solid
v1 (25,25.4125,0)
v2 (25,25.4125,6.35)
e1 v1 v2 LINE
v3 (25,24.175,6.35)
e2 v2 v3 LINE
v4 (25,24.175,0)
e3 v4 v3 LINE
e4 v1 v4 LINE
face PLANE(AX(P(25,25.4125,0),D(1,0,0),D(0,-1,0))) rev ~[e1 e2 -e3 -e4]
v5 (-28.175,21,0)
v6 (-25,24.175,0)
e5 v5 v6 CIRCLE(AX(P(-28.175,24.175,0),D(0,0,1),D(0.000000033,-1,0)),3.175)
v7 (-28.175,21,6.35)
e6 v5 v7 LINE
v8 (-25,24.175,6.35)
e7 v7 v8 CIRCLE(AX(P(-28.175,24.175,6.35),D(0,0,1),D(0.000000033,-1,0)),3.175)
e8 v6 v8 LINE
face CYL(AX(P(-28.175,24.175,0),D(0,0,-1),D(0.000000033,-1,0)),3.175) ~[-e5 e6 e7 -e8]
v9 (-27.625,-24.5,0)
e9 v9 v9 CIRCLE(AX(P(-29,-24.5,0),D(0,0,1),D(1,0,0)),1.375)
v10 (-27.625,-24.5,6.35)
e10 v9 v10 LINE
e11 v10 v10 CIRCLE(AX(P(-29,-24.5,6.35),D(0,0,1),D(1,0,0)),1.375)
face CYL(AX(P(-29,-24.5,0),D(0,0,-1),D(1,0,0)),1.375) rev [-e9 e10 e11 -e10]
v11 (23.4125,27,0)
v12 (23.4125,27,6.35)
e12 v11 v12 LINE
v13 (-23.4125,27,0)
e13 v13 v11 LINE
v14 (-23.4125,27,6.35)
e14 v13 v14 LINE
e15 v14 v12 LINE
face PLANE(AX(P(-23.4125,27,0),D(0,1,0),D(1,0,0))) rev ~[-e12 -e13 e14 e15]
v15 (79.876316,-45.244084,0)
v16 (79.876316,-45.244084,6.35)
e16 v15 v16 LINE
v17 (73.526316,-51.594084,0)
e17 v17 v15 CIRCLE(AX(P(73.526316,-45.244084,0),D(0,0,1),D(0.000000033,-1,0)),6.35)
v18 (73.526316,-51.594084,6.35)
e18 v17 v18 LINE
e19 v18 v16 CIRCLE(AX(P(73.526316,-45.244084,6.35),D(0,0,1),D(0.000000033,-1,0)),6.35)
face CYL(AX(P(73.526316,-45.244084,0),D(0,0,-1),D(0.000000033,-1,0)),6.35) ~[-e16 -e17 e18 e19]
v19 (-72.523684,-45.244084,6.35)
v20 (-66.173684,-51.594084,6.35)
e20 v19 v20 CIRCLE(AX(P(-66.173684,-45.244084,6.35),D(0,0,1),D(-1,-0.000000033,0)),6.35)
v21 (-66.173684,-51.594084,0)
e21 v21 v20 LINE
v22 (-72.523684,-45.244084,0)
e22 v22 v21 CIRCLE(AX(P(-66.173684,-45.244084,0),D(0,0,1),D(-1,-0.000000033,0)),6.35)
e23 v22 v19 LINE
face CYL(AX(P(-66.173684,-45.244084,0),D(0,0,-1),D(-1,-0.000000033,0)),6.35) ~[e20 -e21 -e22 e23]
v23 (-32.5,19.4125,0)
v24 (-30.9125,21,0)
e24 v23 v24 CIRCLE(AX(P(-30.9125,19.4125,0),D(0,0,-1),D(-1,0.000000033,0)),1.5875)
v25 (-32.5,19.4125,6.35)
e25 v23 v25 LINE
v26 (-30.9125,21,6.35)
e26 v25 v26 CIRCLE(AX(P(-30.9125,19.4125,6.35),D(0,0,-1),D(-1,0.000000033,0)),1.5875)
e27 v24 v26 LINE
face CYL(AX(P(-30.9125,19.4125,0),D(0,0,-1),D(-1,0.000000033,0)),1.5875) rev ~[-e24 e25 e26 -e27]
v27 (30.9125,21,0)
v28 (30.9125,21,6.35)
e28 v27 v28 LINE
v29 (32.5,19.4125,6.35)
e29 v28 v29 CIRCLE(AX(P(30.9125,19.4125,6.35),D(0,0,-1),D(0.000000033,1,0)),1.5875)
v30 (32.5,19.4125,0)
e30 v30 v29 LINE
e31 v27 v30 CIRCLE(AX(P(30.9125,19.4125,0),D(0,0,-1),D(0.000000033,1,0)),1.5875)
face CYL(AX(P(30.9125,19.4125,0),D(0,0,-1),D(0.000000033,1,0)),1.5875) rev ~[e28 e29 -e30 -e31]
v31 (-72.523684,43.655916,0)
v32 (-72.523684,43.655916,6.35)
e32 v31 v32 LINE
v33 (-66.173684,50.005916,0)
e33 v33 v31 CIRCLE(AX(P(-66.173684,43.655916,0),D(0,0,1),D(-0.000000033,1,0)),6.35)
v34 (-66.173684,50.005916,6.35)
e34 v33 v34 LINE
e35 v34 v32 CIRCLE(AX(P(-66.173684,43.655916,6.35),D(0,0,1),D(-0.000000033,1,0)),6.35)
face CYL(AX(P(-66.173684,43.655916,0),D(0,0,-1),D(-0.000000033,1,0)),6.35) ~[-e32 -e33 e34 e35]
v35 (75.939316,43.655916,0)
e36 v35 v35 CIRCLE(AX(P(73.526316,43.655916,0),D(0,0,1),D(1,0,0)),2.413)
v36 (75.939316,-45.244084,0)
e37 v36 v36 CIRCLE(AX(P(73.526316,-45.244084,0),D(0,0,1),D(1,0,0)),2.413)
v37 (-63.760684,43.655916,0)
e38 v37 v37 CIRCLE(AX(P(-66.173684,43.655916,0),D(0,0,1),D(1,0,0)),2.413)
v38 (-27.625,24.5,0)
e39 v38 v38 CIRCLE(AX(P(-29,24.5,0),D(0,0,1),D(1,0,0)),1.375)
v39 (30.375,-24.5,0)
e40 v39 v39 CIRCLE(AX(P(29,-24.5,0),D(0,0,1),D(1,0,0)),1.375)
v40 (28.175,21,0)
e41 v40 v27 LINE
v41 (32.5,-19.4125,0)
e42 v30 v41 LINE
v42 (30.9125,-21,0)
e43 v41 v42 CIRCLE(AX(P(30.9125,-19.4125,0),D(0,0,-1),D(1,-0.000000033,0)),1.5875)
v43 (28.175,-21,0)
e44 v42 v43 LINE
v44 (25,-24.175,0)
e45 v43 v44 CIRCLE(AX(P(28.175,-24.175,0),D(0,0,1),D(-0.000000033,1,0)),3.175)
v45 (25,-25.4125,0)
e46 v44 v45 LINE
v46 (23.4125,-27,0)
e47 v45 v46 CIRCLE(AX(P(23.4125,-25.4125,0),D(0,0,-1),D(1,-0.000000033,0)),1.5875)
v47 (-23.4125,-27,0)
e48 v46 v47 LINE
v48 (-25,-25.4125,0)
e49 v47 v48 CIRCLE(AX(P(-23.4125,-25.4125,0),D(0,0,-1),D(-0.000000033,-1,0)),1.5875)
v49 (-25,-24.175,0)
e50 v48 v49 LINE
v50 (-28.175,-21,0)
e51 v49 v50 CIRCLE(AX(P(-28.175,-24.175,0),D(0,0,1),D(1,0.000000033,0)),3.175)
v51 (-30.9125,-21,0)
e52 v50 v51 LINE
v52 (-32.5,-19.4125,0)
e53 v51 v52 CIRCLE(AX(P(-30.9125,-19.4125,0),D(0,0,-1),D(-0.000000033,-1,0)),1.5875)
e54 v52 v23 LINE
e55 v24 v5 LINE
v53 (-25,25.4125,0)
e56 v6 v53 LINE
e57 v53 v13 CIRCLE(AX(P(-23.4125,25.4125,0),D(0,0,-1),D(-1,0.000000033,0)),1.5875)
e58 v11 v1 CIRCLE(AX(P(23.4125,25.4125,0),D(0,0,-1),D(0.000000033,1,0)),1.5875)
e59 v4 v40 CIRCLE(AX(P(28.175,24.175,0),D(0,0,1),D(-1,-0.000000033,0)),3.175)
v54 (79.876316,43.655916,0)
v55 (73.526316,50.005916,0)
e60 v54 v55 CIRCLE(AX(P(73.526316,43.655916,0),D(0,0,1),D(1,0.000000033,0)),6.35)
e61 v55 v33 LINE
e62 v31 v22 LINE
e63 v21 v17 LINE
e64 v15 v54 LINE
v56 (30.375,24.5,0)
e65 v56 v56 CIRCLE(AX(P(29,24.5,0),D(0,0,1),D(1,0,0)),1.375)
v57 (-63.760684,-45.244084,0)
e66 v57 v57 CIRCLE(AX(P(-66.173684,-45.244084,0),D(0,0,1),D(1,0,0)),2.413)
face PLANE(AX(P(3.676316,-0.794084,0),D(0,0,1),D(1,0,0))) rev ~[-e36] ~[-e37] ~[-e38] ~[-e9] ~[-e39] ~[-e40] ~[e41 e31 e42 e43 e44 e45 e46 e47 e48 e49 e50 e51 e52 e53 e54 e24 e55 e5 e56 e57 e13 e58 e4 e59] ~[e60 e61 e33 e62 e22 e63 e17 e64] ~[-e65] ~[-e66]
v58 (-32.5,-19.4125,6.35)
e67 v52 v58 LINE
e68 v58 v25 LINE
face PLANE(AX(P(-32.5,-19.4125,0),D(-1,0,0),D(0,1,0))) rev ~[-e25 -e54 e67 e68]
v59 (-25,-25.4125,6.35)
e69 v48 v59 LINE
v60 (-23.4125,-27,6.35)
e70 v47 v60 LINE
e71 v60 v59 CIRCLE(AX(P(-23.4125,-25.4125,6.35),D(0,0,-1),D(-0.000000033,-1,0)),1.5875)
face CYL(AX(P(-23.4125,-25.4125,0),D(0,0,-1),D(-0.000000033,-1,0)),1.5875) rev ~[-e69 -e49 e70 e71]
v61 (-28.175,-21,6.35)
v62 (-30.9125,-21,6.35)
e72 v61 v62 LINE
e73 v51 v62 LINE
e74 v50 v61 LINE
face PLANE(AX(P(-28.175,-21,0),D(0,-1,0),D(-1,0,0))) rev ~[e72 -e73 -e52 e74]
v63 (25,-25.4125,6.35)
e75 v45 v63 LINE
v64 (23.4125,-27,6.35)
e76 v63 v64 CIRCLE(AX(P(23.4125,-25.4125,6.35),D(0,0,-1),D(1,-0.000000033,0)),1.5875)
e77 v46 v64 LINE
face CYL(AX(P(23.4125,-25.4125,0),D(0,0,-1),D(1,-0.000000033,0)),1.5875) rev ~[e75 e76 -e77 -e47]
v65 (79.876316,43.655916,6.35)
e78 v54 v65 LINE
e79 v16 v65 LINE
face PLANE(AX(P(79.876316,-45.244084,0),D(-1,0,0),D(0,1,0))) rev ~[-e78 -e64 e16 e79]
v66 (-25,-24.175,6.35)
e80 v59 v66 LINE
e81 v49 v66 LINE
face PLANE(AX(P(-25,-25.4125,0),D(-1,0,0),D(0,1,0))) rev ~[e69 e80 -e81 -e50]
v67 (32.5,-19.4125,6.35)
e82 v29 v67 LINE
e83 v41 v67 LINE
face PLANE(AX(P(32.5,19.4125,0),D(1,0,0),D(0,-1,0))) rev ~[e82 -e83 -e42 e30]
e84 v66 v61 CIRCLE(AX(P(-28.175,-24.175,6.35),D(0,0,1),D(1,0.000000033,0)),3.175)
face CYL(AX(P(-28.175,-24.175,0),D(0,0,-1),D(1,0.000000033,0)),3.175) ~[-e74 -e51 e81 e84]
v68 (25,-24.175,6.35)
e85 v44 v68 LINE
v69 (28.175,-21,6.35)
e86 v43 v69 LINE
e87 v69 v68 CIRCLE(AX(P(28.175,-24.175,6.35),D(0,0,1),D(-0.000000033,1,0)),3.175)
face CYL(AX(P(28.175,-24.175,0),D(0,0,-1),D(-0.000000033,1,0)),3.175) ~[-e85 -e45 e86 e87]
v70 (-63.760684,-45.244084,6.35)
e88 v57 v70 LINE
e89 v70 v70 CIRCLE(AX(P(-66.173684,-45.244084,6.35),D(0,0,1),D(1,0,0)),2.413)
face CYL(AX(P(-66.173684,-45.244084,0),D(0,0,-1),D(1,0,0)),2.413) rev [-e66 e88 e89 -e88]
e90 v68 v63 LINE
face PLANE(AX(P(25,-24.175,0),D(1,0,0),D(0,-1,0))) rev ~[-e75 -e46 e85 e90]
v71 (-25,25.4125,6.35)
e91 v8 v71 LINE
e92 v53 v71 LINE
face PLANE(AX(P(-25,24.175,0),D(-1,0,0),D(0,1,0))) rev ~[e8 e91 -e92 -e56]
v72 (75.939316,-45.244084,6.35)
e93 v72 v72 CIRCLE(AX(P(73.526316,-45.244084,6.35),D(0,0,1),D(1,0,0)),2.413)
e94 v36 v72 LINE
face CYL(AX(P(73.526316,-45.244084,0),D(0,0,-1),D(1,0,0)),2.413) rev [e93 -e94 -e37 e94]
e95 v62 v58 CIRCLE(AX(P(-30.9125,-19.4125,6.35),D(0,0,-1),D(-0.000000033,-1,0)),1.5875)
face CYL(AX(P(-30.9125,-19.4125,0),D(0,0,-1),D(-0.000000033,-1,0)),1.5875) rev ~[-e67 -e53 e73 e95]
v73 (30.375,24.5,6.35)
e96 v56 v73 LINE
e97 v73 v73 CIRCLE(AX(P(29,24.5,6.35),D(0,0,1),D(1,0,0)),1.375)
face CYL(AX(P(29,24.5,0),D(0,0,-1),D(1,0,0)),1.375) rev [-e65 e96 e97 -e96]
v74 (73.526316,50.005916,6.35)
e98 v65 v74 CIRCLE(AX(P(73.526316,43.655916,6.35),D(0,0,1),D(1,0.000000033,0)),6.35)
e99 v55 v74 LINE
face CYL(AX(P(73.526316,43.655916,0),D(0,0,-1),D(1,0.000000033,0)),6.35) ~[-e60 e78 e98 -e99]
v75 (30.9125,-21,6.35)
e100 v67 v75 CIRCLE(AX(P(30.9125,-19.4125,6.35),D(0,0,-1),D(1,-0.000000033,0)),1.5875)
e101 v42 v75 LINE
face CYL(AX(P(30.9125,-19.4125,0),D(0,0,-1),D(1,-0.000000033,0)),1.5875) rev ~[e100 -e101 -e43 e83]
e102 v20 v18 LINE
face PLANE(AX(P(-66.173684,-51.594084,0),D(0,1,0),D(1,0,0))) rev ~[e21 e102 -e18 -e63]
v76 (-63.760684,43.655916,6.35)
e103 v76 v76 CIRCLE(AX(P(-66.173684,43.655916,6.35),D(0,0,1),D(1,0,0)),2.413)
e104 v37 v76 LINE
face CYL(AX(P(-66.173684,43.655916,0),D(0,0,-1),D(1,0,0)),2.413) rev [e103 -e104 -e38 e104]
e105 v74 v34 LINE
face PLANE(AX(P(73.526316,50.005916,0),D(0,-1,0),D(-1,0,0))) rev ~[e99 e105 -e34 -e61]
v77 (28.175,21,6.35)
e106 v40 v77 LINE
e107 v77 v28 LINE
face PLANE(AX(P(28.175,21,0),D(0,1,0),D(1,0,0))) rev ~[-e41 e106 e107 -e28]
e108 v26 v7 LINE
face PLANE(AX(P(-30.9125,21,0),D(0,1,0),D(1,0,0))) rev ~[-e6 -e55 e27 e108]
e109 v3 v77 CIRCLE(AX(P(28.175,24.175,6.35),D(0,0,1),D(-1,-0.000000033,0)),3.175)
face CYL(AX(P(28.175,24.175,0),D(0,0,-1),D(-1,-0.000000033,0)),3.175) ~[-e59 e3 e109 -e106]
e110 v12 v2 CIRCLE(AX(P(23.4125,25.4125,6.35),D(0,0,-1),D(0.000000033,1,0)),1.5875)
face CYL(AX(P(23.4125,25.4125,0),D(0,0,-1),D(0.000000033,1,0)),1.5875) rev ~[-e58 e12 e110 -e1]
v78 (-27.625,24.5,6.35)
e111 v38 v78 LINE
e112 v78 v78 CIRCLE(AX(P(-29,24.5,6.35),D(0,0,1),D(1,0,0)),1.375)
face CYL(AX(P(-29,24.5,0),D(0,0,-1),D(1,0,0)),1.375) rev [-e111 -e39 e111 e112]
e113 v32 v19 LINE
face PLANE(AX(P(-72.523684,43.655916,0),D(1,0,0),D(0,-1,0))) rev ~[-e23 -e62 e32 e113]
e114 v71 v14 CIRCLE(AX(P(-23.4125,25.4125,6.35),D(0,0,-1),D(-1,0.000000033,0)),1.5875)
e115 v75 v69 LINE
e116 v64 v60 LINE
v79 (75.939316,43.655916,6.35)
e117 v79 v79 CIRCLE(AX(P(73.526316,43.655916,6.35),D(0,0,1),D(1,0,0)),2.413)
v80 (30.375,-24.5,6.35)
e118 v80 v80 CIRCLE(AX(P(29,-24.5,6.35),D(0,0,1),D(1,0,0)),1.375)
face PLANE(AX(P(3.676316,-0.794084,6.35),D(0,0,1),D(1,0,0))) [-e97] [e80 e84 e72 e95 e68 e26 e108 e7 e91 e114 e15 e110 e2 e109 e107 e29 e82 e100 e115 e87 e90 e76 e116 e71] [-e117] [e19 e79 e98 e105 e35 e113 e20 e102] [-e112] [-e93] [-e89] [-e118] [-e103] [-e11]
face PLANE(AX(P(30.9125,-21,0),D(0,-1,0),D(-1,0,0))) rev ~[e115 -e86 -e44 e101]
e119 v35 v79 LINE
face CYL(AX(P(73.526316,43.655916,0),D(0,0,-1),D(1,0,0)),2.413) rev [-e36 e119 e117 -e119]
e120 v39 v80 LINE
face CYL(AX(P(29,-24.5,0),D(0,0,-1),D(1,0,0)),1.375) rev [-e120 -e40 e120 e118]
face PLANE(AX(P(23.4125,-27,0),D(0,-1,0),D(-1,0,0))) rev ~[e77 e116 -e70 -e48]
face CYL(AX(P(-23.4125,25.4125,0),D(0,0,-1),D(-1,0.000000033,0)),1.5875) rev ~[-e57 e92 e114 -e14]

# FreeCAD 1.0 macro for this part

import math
import FreeCAD as App
import Part
import Sketcher

V = App.Vector
Q = App.Units.Quantity

doc = App.newDocument("Part")
body = doc.addObject("PartDesign::Body", "Body")

sketch1 = doc.addObject("Sketcher::SketchObject", "Sketch")
body.addObject(sketch1)
sketch1.AttachmentSupport = (doc.XY_Plane, [""])
sketch1.MapMode = "FlatFace"
sketch1.addGeometry(Part.ArcOfCircle(Part.Circle(V(-66.2, -45.2, 0), V(0, 0, 1), 6.4), math.radians(-180), math.radians(-90)), False)
sketch1.addGeometry(Part.LineSegment(V(-66.2, -51.6, 0), V(73.5, -51.6, 0)), False)
sketch1.addGeometry(Part.ArcOfCircle(Part.Circle(V(73.5, -45.2, 0), V(0, 0, 1), 6.4), math.radians(-90), math.radians(0)), False)
sketch1.addGeometry(Part.LineSegment(V(79.9, -45.2, 0), V(79.9, 43.7, 0)), False)
sketch1.addGeometry(Part.ArcOfCircle(Part.Circle(V(73.5, 43.7, 0), V(0, 0, 1), 6.4), math.radians(0), math.radians(90)), False)
sketch1.addGeometry(Part.LineSegment(V(73.5, 50, 0), V(-66.2, 50, 0)), False)
sketch1.addGeometry(Part.ArcOfCircle(Part.Circle(V(-66.2, 43.7, 0), V(0, 0, 1), 6.4), math.radians(90), math.radians(180)), False)
sketch1.addGeometry(Part.LineSegment(V(-72.5, 43.7, 0), V(-72.5, -45.2, 0)), False)
sketch1.addGeometry(Part.Circle(V(-66.2, -45.2, 0), V(0, 0, 1), 2.4), False)
sketch1.addGeometry(Part.Circle(V(-29, -24.5, 0), V(0, 0, 1), 1.4), False)
sketch1.addGeometry(Part.Circle(V(29, -24.5, 0), V(0, 0, 1), 1.4), False)
sketch1.addGeometry(Part.Circle(V(73.5, -45.2, 0), V(0, 0, 1), 2.4), False)
sketch1.addGeometry(Part.LineSegment(V(-32.5, -19.4, 0), V(-32.5, 19.4, 0)), False)
sketch1.addGeometry(Part.ArcOfCircle(Part.Circle(V(-30.9, 19.4, 0), V(0, 0, 1), 1.6), math.radians(90), math.radians(180)), False)
sketch1.addGeometry(Part.LineSegment(V(-30.9, 21, 0), V(-28.2, 21, 0)), False)
sketch1.addGeometry(Part.ArcOfCircle(Part.Circle(V(-28.2, 24.2, 0), V(0, 0, 1), 3.2), math.radians(-90), math.radians(0)), False)
sketch1.addGeometry(Part.LineSegment(V(-25, 24.2, 0), V(-25, 25.4, 0)), False)
sketch1.addGeometry(Part.ArcOfCircle(Part.Circle(V(-23.4, 25.4, 0), V(0, 0, 1), 1.6), math.radians(90), math.radians(180)), False)
sketch1.addGeometry(Part.LineSegment(V(-23.4, 27, 0), V(23.4, 27, 0)), False)
sketch1.addGeometry(Part.ArcOfCircle(Part.Circle(V(23.4, 25.4, 0), V(0, 0, 1), 1.6), math.radians(0), math.radians(90)), False)
sketch1.addGeometry(Part.LineSegment(V(25, 25.4, 0), V(25, 24.2, 0)), False)
sketch1.addGeometry(Part.ArcOfCircle(Part.Circle(V(28.2, 24.2, 0), V(0, 0, 1), 3.2), math.radians(-180), math.radians(-90)), False)
sketch1.addGeometry(Part.LineSegment(V(28.2, 21, 0), V(30.9, 21, 0)), False)
sketch1.addGeometry(Part.ArcOfCircle(Part.Circle(V(30.9, 19.4, 0), V(0, 0, 1), 1.6), math.radians(0), math.radians(90)), False)
sketch1.addGeometry(Part.LineSegment(V(32.5, 19.4, 0), V(32.5, -19.4, 0)), False)
sketch1.addGeometry(Part.ArcOfCircle(Part.Circle(V(30.9, -19.4, 0), V(0, 0, 1), 1.6), math.radians(-90), math.radians(0)), False)
sketch1.addGeometry(Part.LineSegment(V(30.9, -21, 0), V(28.2, -21, 0)), False)
sketch1.addGeometry(Part.ArcOfCircle(Part.Circle(V(28.2, -24.2, 0), V(0, 0, 1), 3.2), math.radians(90), math.radians(180)), False)
sketch1.addGeometry(Part.LineSegment(V(25, -24.2, 0), V(25, -25.4, 0)), False)
sketch1.addGeometry(Part.ArcOfCircle(Part.Circle(V(23.4, -25.4, 0), V(0, 0, 1), 1.6), math.radians(-90), math.radians(0)), False)
sketch1.addGeometry(Part.LineSegment(V(23.4, -27, 0), V(-23.4, -27, 0)), False)
sketch1.addGeometry(Part.ArcOfCircle(Part.Circle(V(-23.4, -25.4, 0), V(0, 0, 1), 1.6), math.radians(-180), math.radians(-90)), False)
sketch1.addGeometry(Part.LineSegment(V(-25, -25.4, 0), V(-25, -24.2, 0)), False)
sketch1.addGeometry(Part.ArcOfCircle(Part.Circle(V(-28.2, -24.2, 0), V(0, 0, 1), 3.2), math.radians(0), math.radians(90)), False)
sketch1.addGeometry(Part.LineSegment(V(-28.2, -21, 0), V(-30.9, -21, 0)), False)
sketch1.addGeometry(Part.ArcOfCircle(Part.Circle(V(-30.9, -19.4, 0), V(0, 0, 1), 1.6), math.radians(-180), math.radians(-90)), False)
sketch1.addGeometry(Part.Circle(V(-66.2, 43.7, 0), V(0, 0, 1), 2.4), False)
sketch1.addGeometry(Part.Circle(V(-29, 24.5, 0), V(0, 0, 1), 1.4), False)
sketch1.addGeometry(Part.Circle(V(29, 24.5, 0), V(0, 0, 1), 1.4), False)
sketch1.addGeometry(Part.Circle(V(73.5, 43.7, 0), V(0, 0, 1), 2.4), False)
sketch1.addConstraint(Sketcher.Constraint("Tangent", 0, 2, 1, 1))
sketch1.addConstraint(Sketcher.Constraint("Tangent", 1, 2, 2, 1))
sketch1.addConstraint(Sketcher.Constraint("Tangent", 2, 2, 3, 1))
sketch1.addConstraint(Sketcher.Constraint("Tangent", 3, 2, 4, 1))
sketch1.addConstraint(Sketcher.Constraint("Tangent", 4, 2, 5, 1))
sketch1.addConstraint(Sketcher.Constraint("Tangent", 5, 2, 6, 1))
sketch1.addConstraint(Sketcher.Constraint("Tangent", 6, 2, 7, 1))
sketch1.addConstraint(Sketcher.Constraint("Tangent", 7, 2, 0, 1))
sketch1.addConstraint(Sketcher.Constraint("Tangent", 12, 2, 13, 2))
sketch1.addConstraint(Sketcher.Constraint("Tangent", 13, 1, 14, 1))
sketch1.addConstraint(Sketcher.Constraint("Tangent", 14, 2, 15, 1))
sketch1.addConstraint(Sketcher.Constraint("Tangent", 15, 2, 16, 1))
sketch1.addConstraint(Sketcher.Constraint("Tangent", 16, 2, 17, 2))
sketch1.addConstraint(Sketcher.Constraint("Tangent", 17, 1, 18, 1))
sketch1.addConstraint(Sketcher.Constraint("Tangent", 18, 2, 19, 2))
sketch1.addConstraint(Sketcher.Constraint("Tangent", 19, 1, 20, 1))
sketch1.addConstraint(Sketcher.Constraint("Tangent", 20, 2, 21, 1))
sketch1.addConstraint(Sketcher.Constraint("Tangent", 21, 2, 22, 1))
sketch1.addConstraint(Sketcher.Constraint("Tangent", 22, 2, 23, 2))
sketch1.addConstraint(Sketcher.Constraint("Tangent", 23, 1, 24, 1))
sketch1.addConstraint(Sketcher.Constraint("Tangent", 24, 2, 25, 2))
sketch1.addConstraint(Sketcher.Constraint("Tangent", 25, 1, 26, 1))
sketch1.addConstraint(Sketcher.Constraint("Tangent", 26, 2, 27, 1))
sketch1.addConstraint(Sketcher.Constraint("Tangent", 27, 2, 28, 1))
sketch1.addConstraint(Sketcher.Constraint("Tangent", 28, 2, 29, 2))
sketch1.addConstraint(Sketcher.Constraint("Tangent", 29, 1, 30, 1))
sketch1.addConstraint(Sketcher.Constraint("Tangent", 30, 2, 31, 2))
sketch1.addConstraint(Sketcher.Constraint("Tangent", 31, 1, 32, 1))
sketch1.addConstraint(Sketcher.Constraint("Tangent", 32, 2, 33, 1))
sketch1.addConstraint(Sketcher.Constraint("Tangent", 33, 2, 34, 1))
sketch1.addConstraint(Sketcher.Constraint("Tangent", 34, 2, 35, 2))
sketch1.addConstraint(Sketcher.Constraint("Tangent", 35, 1, 12, 1))
sketch1.addConstraint(Sketcher.Constraint("Horizontal", 1))
sketch1.addConstraint(Sketcher.Constraint("Vertical", 3))
sketch1.addConstraint(Sketcher.Constraint("Horizontal", 5))
sketch1.addConstraint(Sketcher.Constraint("Vertical", 7))
sketch1.addConstraint(Sketcher.Constraint("Vertical", 12))
sketch1.addConstraint(Sketcher.Constraint("Horizontal", 14))
sketch1.addConstraint(Sketcher.Constraint("Vertical", 16))
sketch1.addConstraint(Sketcher.Constraint("Horizontal", 18))
sketch1.addConstraint(Sketcher.Constraint("Vertical", 20))
sketch1.addConstraint(Sketcher.Constraint("Horizontal", 22))
sketch1.addConstraint(Sketcher.Constraint("Vertical", 24))
sketch1.addConstraint(Sketcher.Constraint("Horizontal", 26))
sketch1.addConstraint(Sketcher.Constraint("Vertical", 28))
sketch1.addConstraint(Sketcher.Constraint("Horizontal", 30))
sketch1.addConstraint(Sketcher.Constraint("Vertical", 32))
sketch1.addConstraint(Sketcher.Constraint("Horizontal", 34))
sketch1.addConstraint(Sketcher.Constraint("Coincident", 8, 3, 0, 3))
sketch1.addConstraint(Sketcher.Constraint("Coincident", 11, 3, 2, 3))
sketch1.addConstraint(Sketcher.Constraint("Coincident", 36, 3, 6, 3))
sketch1.addConstraint(Sketcher.Constraint("Coincident", 39, 3, 4, 3))
sketch1.addConstraint(Sketcher.Constraint("Equal", 0, 2))
sketch1.addConstraint(Sketcher.Constraint("Equal", 2, 4))
sketch1.addConstraint(Sketcher.Constraint("Equal", 4, 6))
sketch1.addConstraint(Sketcher.Constraint("Equal", 9, 10))
sketch1.addConstraint(Sketcher.Constraint("Equal", 8, 11))
sketch1.addConstraint(Sketcher.Constraint("Equal", 13, 17))
sketch1.addConstraint(Sketcher.Constraint("Equal", 17, 19))
sketch1.addConstraint(Sketcher.Constraint("Equal", 15, 21))
sketch1.addConstraint(Sketcher.Constraint("Equal", 19, 23))
sketch1.addConstraint(Sketcher.Constraint("Equal", 23, 25))
sketch1.addConstraint(Sketcher.Constraint("Equal", 21, 27))
sketch1.addConstraint(Sketcher.Constraint("Equal", 25, 29))
sketch1.addConstraint(Sketcher.Constraint("Equal", 29, 31))
sketch1.addConstraint(Sketcher.Constraint("Equal", 27, 33))
sketch1.addConstraint(Sketcher.Constraint("Equal", 31, 35))
sketch1.addConstraint(Sketcher.Constraint("Equal", 11, 36))
sketch1.addConstraint(Sketcher.Constraint("Equal", 10, 37))
sketch1.addConstraint(Sketcher.Constraint("Equal", 37, 38))
sketch1.addConstraint(Sketcher.Constraint("Equal", 36, 39))
sketch1.addConstraint(Sketcher.Constraint("Symmetric", 13, 3, 25, 3, -1, 1))
sketch1.addConstraint(Sketcher.Constraint("Symmetric", 17, 3, 29, 3, -1, 1))
sketch1.addConstraint(Sketcher.Constraint("Symmetric", 21, 3, 33, 3, -1, 1))
sketch1.addConstraint(Sketcher.Constraint("Symmetric", 10, 3, 37, 3, -1, 1))
sketch1.addConstraint(Sketcher.Constraint("Symmetric", 9, 3, 38, 3, -1, 1))
sketch1.addConstraint(Sketcher.Constraint("Symmetric", 9, 3, 10, 3, -2))
sketch1.addConstraint(Sketcher.Constraint("Symmetric", 15, 3, 21, 3, -2))
sketch1.addConstraint(Sketcher.Constraint("Diameter", 8, Q("0.19 in")))
sketch1.addConstraint(Sketcher.Constraint("Radius", 0, Q("0.25 in")))
sketch1.addConstraint(Sketcher.Constraint("DistanceX", 1, 1, 1, 2, Q("5.5 in")))
sketch1.addConstraint(Sketcher.Constraint("DistanceY", 3, 1, 3, 2, Q("3.5 in")))
sketch1.addConstraint(Sketcher.Constraint("Radius", 13, Q("0.0625 in")))
sketch1.addConstraint(Sketcher.Constraint("Radius", 15, Q("0.125 in")))
sketch1.addConstraint(Sketcher.Constraint("Diameter", 9, Q("2.75 mm")))
sketch1.addConstraint(Sketcher.Constraint("DistanceX", 14, 1, 14, 2, Q("2.7375 mm")))
sketch1.addConstraint(Sketcher.Constraint("DistanceX", 18, 1, 18, 2, Q("46.825 mm")))
sketch1.addConstraint(Sketcher.Constraint("DistanceY", 12, 1, 12, 2, Q("38.825 mm")))
sketch1.addConstraint(Sketcher.Constraint("DistanceY", 16, 1, 16, 2, Q("1.2375 mm")))
sketch1.addConstraint(Sketcher.Constraint("DistanceX", 9, 3, -1, 1, Q("29 mm")))
sketch1.addConstraint(Sketcher.Constraint("DistanceY", 9, 3, -1, 1, Q("24.5 mm")))
sketch1.addConstraint(Sketcher.Constraint("DistanceX", 0, 3, -1, 1, Q("66.173684 mm")))
sketch1.addConstraint(Sketcher.Constraint("DistanceY", 0, 3, -1, 1, Q("45.244084 mm")))
pad1 = doc.addObject("PartDesign::Pad", "Pad")
body.addObject(pad1)
pad1.Profile = sketch1
pad1.Length = Q("0.25 in")

doc.recompute()
